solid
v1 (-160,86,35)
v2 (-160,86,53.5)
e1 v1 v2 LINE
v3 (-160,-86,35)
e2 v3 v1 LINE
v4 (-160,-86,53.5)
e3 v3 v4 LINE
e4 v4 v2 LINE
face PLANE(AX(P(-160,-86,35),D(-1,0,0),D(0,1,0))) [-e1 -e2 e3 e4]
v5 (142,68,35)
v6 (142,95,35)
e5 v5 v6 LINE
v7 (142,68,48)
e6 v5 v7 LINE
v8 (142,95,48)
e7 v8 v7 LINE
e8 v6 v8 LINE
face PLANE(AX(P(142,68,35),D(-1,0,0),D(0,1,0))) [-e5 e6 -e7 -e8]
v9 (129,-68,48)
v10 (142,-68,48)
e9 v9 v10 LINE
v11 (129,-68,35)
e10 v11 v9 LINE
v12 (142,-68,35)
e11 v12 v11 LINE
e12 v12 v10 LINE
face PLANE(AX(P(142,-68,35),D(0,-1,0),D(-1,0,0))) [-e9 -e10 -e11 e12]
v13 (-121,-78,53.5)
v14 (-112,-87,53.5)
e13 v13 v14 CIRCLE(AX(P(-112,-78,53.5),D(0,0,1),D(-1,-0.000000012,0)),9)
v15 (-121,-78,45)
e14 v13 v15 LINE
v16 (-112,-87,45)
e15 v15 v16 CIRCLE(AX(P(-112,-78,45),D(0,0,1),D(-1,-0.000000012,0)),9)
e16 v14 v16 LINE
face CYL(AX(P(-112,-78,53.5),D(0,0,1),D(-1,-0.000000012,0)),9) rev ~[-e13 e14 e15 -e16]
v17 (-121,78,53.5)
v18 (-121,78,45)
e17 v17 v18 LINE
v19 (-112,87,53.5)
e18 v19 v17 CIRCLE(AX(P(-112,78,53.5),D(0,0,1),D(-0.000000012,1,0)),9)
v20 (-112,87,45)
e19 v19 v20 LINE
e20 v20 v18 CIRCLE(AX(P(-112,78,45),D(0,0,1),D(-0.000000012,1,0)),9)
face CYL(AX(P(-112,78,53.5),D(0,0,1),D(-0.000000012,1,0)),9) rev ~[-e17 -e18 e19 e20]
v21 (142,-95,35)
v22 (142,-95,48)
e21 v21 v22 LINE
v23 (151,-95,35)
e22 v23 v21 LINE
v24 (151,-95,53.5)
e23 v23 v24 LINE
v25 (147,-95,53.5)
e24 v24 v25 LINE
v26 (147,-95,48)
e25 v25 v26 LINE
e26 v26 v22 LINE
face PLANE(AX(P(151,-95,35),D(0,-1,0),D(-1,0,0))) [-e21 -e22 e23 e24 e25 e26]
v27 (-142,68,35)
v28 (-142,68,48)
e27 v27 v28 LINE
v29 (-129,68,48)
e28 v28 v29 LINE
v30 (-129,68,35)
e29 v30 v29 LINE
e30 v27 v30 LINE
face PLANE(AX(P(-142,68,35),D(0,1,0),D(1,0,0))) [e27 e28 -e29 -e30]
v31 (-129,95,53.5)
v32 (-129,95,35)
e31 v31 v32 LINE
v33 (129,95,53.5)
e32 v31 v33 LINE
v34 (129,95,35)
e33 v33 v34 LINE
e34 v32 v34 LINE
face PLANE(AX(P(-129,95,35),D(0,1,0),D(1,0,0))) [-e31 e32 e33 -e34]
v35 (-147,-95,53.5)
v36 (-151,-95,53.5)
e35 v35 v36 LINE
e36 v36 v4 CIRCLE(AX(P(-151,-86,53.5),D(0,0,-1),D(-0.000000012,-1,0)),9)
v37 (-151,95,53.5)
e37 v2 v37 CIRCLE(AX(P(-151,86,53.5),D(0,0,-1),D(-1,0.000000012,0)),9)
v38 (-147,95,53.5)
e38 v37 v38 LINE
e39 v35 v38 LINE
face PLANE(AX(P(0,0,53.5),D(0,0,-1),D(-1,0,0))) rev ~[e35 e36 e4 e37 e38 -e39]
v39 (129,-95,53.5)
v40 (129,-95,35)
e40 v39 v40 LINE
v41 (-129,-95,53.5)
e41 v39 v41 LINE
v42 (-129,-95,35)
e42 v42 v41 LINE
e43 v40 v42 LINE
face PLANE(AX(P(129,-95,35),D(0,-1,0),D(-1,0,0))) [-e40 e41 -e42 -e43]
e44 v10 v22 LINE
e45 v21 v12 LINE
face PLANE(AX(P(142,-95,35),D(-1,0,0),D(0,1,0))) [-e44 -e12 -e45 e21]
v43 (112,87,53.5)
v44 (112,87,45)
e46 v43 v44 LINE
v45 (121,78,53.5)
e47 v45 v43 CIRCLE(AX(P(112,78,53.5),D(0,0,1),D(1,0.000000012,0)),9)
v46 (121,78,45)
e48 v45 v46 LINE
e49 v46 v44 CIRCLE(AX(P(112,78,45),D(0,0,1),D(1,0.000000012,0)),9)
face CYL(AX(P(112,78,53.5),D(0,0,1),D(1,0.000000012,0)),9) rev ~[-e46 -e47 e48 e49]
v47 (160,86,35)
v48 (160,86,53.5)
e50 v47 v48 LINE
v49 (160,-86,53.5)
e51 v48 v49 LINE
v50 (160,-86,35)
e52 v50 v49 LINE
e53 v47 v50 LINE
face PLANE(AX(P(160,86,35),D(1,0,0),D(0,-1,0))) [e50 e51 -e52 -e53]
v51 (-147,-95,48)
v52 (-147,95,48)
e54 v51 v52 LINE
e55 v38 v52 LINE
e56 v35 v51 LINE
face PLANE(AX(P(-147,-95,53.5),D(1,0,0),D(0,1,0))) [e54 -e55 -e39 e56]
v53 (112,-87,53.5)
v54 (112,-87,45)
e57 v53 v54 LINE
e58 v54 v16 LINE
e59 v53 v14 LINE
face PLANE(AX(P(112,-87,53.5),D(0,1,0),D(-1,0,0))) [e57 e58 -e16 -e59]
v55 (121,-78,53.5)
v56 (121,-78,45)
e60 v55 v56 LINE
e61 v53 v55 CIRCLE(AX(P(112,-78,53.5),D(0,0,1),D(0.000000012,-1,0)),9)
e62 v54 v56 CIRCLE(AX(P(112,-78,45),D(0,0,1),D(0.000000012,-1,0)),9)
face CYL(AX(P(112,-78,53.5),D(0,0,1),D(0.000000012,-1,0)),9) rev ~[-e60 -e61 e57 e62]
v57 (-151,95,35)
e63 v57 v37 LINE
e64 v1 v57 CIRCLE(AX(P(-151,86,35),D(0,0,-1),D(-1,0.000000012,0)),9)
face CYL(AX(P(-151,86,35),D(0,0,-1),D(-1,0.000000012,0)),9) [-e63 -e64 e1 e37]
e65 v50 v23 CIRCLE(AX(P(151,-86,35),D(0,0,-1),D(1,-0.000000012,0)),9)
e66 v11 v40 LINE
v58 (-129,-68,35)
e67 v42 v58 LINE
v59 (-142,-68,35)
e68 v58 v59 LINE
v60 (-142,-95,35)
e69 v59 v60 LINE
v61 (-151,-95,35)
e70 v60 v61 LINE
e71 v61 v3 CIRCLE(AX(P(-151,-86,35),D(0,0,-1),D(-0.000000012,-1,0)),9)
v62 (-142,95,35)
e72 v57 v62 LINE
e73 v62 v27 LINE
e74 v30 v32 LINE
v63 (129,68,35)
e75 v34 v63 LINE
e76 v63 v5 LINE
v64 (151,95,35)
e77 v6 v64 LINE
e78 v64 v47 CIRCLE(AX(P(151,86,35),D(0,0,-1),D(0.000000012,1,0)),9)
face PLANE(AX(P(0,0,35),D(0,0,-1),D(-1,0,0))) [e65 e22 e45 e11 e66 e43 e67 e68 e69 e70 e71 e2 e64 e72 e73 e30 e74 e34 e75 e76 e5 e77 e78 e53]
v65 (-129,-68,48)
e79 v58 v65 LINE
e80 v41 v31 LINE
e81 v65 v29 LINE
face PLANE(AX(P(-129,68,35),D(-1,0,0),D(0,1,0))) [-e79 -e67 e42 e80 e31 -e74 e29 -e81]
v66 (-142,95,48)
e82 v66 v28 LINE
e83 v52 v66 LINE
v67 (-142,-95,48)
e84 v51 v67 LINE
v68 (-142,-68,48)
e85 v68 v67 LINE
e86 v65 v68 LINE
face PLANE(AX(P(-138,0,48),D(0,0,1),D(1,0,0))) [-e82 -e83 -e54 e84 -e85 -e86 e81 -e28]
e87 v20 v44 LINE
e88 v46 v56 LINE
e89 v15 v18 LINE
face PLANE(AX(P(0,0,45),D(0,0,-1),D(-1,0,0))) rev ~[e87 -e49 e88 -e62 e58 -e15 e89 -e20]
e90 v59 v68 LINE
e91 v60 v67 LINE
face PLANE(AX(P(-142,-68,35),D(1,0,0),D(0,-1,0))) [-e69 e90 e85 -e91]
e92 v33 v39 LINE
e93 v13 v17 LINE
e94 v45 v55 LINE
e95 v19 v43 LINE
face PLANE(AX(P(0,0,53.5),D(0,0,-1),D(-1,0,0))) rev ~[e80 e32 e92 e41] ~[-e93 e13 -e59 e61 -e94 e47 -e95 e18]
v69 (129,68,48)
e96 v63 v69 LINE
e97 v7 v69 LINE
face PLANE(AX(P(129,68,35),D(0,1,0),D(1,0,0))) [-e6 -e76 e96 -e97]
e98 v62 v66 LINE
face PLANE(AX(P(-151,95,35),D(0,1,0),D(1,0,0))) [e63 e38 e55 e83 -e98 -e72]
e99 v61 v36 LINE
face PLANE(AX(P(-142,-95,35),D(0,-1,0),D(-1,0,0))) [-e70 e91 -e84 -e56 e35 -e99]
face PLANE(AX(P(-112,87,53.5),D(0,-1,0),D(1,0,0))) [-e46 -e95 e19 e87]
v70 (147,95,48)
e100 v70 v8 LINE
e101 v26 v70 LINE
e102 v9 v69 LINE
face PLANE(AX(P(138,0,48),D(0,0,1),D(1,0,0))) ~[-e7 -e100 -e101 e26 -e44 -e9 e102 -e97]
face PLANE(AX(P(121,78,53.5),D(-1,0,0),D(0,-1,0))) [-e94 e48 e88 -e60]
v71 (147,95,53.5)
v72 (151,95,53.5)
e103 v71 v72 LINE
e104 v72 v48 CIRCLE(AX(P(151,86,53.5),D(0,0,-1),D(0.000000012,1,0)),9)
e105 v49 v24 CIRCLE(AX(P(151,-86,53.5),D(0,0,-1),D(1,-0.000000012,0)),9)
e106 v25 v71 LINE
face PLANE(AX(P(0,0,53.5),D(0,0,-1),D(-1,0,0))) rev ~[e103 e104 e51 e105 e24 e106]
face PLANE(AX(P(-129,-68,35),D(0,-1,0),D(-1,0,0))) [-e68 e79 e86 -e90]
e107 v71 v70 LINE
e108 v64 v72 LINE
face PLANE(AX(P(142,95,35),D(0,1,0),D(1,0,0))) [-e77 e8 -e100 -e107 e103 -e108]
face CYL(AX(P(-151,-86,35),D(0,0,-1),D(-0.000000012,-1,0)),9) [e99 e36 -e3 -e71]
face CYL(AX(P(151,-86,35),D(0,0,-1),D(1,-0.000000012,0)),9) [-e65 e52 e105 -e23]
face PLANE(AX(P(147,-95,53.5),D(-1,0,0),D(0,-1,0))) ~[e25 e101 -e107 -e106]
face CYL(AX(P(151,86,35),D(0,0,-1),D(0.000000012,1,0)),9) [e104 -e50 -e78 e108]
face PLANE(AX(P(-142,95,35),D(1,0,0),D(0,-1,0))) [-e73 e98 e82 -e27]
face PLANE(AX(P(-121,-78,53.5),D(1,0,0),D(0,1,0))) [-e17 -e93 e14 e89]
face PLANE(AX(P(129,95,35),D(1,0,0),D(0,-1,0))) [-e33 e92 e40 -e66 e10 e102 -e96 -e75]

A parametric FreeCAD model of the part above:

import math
import FreeCAD as App
import Part
import Sketcher
from FreeCAD import Vector

doc = App.newDocument("Part")
body = doc.addObject("PartDesign::Body", "Body")

# Sketch on XY plane
sketch1 = doc.addObject("Sketcher::SketchObject", "Sketch")
body.addObject(sketch1)
sketch1.AttachmentSupport = (doc.XY_Plane, [""])
sketch1.MapMode = "FlatFace"
sketch1.addGeometry(Part.LineSegment(Vector(-142, 95, 0), Vector(-151, 95, 0)), False)
sketch1.addGeometry(Part.ArcOfCircle(Part.Circle(Vector(-151, 86, 0), Vector(0, 0, 1), 9), math.radians(90), math.radians(180)), False)
sketch1.addGeometry(Part.LineSegment(Vector(-160, 86, 0), Vector(-160, -86, 0)), False)
sketch1.addGeometry(Part.ArcOfCircle(Part.Circle(Vector(-151, -86, 0), Vector(0, 0, 1), 9), math.radians(-180), math.radians(-90)), False)
sketch1.addGeometry(Part.LineSegment(Vector(-151, -95, 0), Vector(-142, -95, 0)), False)
sketch1.addGeometry(Part.LineSegment(Vector(-142, -95, 0), Vector(-142, -68, 0)), False)
sketch1.addGeometry(Part.LineSegment(Vector(-142, -68, 0), Vector(-129, -68, 0)), False)
sketch1.addGeometry(Part.LineSegment(Vector(-129, -68, 0), Vector(-129, -95, 0)), False)
sketch1.addGeometry(Part.LineSegment(Vector(-129, -95, 0), Vector(129, -95, 0)), False)
sketch1.addGeometry(Part.LineSegment(Vector(129, -95, 0), Vector(129, -68, 0)), False)
sketch1.addGeometry(Part.LineSegment(Vector(129, -68, 0), Vector(142, -68, 0)), False)
sketch1.addGeometry(Part.LineSegment(Vector(142, -68, 0), Vector(142, -95, 0)), False)
sketch1.addGeometry(Part.LineSegment(Vector(142, -95, 0), Vector(151, -95, 0)), False)
sketch1.addGeometry(Part.ArcOfCircle(Part.Circle(Vector(151, -86, 0), Vector(0, 0, 1), 9), math.radians(-90), math.radians(0)), False)
sketch1.addGeometry(Part.LineSegment(Vector(160, -86, 0), Vector(160, 86, 0)), False)
sketch1.addGeometry(Part.ArcOfCircle(Part.Circle(Vector(151, 86, 0), Vector(0, 0, 1), 9), math.radians(0), math.radians(90)), False)
sketch1.addGeometry(Part.LineSegment(Vector(151, 95, 0), Vector(142, 95, 0)), False)
sketch1.addGeometry(Part.LineSegment(Vector(142, 95, 0), Vector(142, 68, 0)), False)
sketch1.addGeometry(Part.LineSegment(Vector(142, 68, 0), Vector(129, 68, 0)), False)
sketch1.addGeometry(Part.LineSegment(Vector(129, 68, 0), Vector(129, 95, 0)), False)
sketch1.addGeometry(Part.LineSegment(Vector(129, 95, 0), Vector(-129, 95, 0)), False)
sketch1.addGeometry(Part.LineSegment(Vector(-129, 95, 0), Vector(-129, 68, 0)), False)
sketch1.addGeometry(Part.LineSegment(Vector(-129, 68, 0), Vector(-142, 68, 0)), False)
sketch1.addGeometry(Part.LineSegment(Vector(-142, 68, 0), Vector(-142, 95, 0)), False)
sketch1.addConstraint(Sketcher.Constraint("Tangent", 0, 2, 1, 1))
sketch1.addConstraint(Sketcher.Constraint("Tangent", 1, 2, 2, 1))
sketch1.addConstraint(Sketcher.Constraint("Tangent", 2, 2, 3, 1))
sketch1.addConstraint(Sketcher.Constraint("Tangent", 3, 2, 4, 1))
sketch1.addConstraint(Sketcher.Constraint("Coincident", 4, 2, 5, 1))
sketch1.addConstraint(Sketcher.Constraint("Coincident", 5, 2, 6, 1))
sketch1.addConstraint(Sketcher.Constraint("Coincident", 6, 2, 7, 1))
sketch1.addConstraint(Sketcher.Constraint("Coincident", 7, 2, 8, 1))
sketch1.addConstraint(Sketcher.Constraint("Coincident", 8, 2, 9, 1))
sketch1.addConstraint(Sketcher.Constraint("Coincident", 9, 2, 10, 1))
sketch1.addConstraint(Sketcher.Constraint("Coincident", 10, 2, 11, 1))
sketch1.addConstraint(Sketcher.Constraint("Coincident", 11, 2, 12, 1))
sketch1.addConstraint(Sketcher.Constraint("Tangent", 12, 2, 13, 1))
sketch1.addConstraint(Sketcher.Constraint("Tangent", 13, 2, 14, 1))
sketch1.addConstraint(Sketcher.Constraint("Tangent", 14, 2, 15, 1))
sketch1.addConstraint(Sketcher.Constraint("Tangent", 15, 2, 16, 1))
sketch1.addConstraint(Sketcher.Constraint("Coincident", 16, 2, 17, 1))
sketch1.addConstraint(Sketcher.Constraint("Coincident", 17, 2, 18, 1))
sketch1.addConstraint(Sketcher.Constraint("Coincident", 18, 2, 19, 1))
sketch1.addConstraint(Sketcher.Constraint("Coincident", 19, 2, 20, 1))
sketch1.addConstraint(Sketcher.Constraint("Coincident", 20, 2, 21, 1))
sketch1.addConstraint(Sketcher.Constraint("Coincident", 21, 2, 22, 1))
sketch1.addConstraint(Sketcher.Constraint("Coincident", 22, 2, 23, 1))
sketch1.addConstraint(Sketcher.Constraint("Coincident", 23, 2, 0, 1))
sketch1.addConstraint(Sketcher.Constraint("Horizontal", 0))
sketch1.addConstraint(Sketcher.Constraint("Vertical", 2))
sketch1.addConstraint(Sketcher.Constraint("Horizontal", 4))
sketch1.addConstraint(Sketcher.Constraint("Vertical", 5))
sketch1.addConstraint(Sketcher.Constraint("Horizontal", 6))
sketch1.addConstraint(Sketcher.Constraint("Vertical", 7))
sketch1.addConstraint(Sketcher.Constraint("Horizontal", 8))
sketch1.addConstraint(Sketcher.Constraint("Vertical", 9))
sketch1.addConstraint(Sketcher.Constraint("Horizontal", 10))
sketch1.addConstraint(Sketcher.Constraint("Vertical", 11))
sketch1.addConstraint(Sketcher.Constraint("Horizontal", 12))
sketch1.addConstraint(Sketcher.Constraint("Vertical", 14))
sketch1.addConstraint(Sketcher.Constraint("Horizontal", 16))
sketch1.addConstraint(Sketcher.Constraint("Vertical", 17))
sketch1.addConstraint(Sketcher.Constraint("Horizontal", 18))
sketch1.addConstraint(Sketcher.Constraint("Vertical", 19))
sketch1.addConstraint(Sketcher.Constraint("Horizontal", 20))
sketch1.addConstraint(Sketcher.Constraint("Vertical", 21))
sketch1.addConstraint(Sketcher.Constraint("Horizontal", 22))
sketch1.addConstraint(Sketcher.Constraint("Vertical", 23))
sketch1.addConstraint(Sketcher.Constraint("Equal", 1, 3))
sketch1.addConstraint(Sketcher.Constraint("Equal", 3, 13))
sketch1.addConstraint(Sketcher.Constraint("Equal", 13, 15))
sketch1.addConstraint(Sketcher.Constraint("Symmetric", 1, 3, 13, 3, -1, 1))
sketch1.addConstraint(Sketcher.Constraint("Symmetric", 4, 2, 16, 2, -1, 1))
sketch1.addConstraint(Sketcher.Constraint("Symmetric", 6, 2, 18, 2, -1, 1))
sketch1.addConstraint(Sketcher.Constraint("Symmetric", 8, 2, 20, 2, -1, 1))
sketch1.addConstraint(Sketcher.Constraint("Symmetric", 10, 2, 22, 2, -1, 1))
sketch1.addConstraint(Sketcher.Constraint("Symmetric", 6, 2, 9, 2, -2))
sketch1.addConstraint(Sketcher.Constraint("Symmetric", 4, 2, 11, 2, -2))
sketch1.addConstraint(Sketcher.Constraint("Horizontal", 4, 2, 7, 2))
sketch1.addConstraint(Sketcher.Constraint("Radius", 1, 9.0))
sketch1.addConstraint(Sketcher.Constraint("DistanceX", 0, 2, 0, 1, 9.0))
sketch1.addConstraint(Sketcher.Constraint("DistanceX", 6, 1, 6, 2, 13.0))
sketch1.addConstraint(Sketcher.Constraint("DistanceX", 8, 1, 8, 2, 258.0))
sketch1.addConstraint(Sketcher.Constraint("DistanceY", 2, 2, 2, 1, 172.0))
sketch1.addConstraint(Sketcher.Constraint("DistanceY", 5, 1, 5, 2, 27.0))
pad1 = doc.addObject("PartDesign::Pad", "Pad")
body.addObject(pad1)
pad1.Profile = sketch1
pad1.Length = 18.5

# Sketch on XY plane
sketch2 = doc.addObject("Sketcher::SketchObject", "Sketch001")
body.addObject(sketch2)
sketch2.AttachmentSupport = (doc.XY_Plane, [""])
sketch2.MapMode = "FlatFace"
sketch2.AttachmentOffset = App.Placement(Vector(0, 0, 18.5), App.Rotation())
sketch2.addGeometry(Part.LineSegment(Vector(-147, 95, 0), Vector(-147, -95, 0)), False)
sketch2.addGeometry(Part.LineSegment(Vector(-147, -95, 0), Vector(-129, -95, 0)), False)
sketch2.addGeometry(Part.LineSegment(Vector(-129, -95, 0), Vector(-129, 95, 0)), False)
sketch2.addGeometry(Part.LineSegment(Vector(-129, 95, 0), Vector(-147, 95, 0)), False)
sketch2.addConstraint(Sketcher.Constraint("Coincident", 0, 2, 1, 1))
sketch2.addConstraint(Sketcher.Constraint("Coincident", 1, 2, 2, 1))
sketch2.addConstraint(Sketcher.Constraint("Coincident", 2, 2, 3, 1))
sketch2.addConstraint(Sketcher.Constraint("Coincident", 3, 2, 0, 1))
sketch2.addConstraint(Sketcher.Constraint("Vertical", 0))
sketch2.addConstraint(Sketcher.Constraint("Horizontal", 1))
sketch2.addConstraint(Sketcher.Constraint("Vertical", 2))
sketch2.addConstraint(Sketcher.Constraint("Horizontal", 3))
sketch2.addConstraint(Sketcher.Constraint("DistanceX", 1, 1, 1, 2, 18.0))
sketch2.addConstraint(Sketcher.Constraint("DistanceY", 0, 2, 0, 1, 190.0))
sketch2.addConstraint(Sketcher.Constraint("DistanceX", 0, 2, -1, 1, 147.0))
sketch2.addConstraint(Sketcher.Constraint("DistanceY", 0, 2, -1, 1, 95.0))
pocket1 = doc.addObject("PartDesign::Pocket", "Pocket")
body.addObject(pocket1)
pocket1.Profile = sketch2
pocket1.Length = 5.5
doc.recompute()

mirrored = doc.addObject("PartDesign::Mirrored", "Mirrored")
body.addObject(mirrored)
mirrored.Originals = [pocket1]
mirrored.MirrorPlane = (doc.YZ_Plane, [""])
body.Tip = mirrored

# Sketch on XY plane
sketch3 = doc.addObject("Sketcher::SketchObject", "Sketch002")
body.addObject(sketch3)
sketch3.AttachmentSupport = (doc.XY_Plane, [""])
sketch3.MapMode = "FlatFace"
sketch3.AttachmentOffset = App.Placement(Vector(0, 0, 18.5), App.Rotation())
sketch3.addGeometry(Part.LineSegment(Vector(112, 87, 0), Vector(-112, 87, 0)), False)
sketch3.addGeometry(Part.ArcOfCircle(Part.Circle(Vector(-112, 78, 0), Vector(0, 0, 1), 9), math.radians(90), math.radians(180)), False)
sketch3.addGeometry(Part.LineSegment(Vector(-121, 78, 0), Vector(-121, -78, 0)), False)
sketch3.addGeometry(Part.ArcOfCircle(Part.Circle(Vector(-112, -78, 0), Vector(0, 0, 1), 9), math.radians(-180), math.radians(-90)), False)
sketch3.addGeometry(Part.LineSegment(Vector(-112, -87, 0), Vector(112, -87, 0)), False)
sketch3.addGeometry(Part.ArcOfCircle(Part.Circle(Vector(112, -78, 0), Vector(0, 0, 1), 9), math.radians(-90), math.radians(0)), False)
sketch3.addGeometry(Part.LineSegment(Vector(121, -78, 0), Vector(121, 78, 0)), False)
sketch3.addGeometry(Part.ArcOfCircle(Part.Circle(Vector(112, 78, 0), Vector(0, 0, 1), 9), math.radians(0), math.radians(90)), False)
sketch3.addConstraint(Sketcher.Constraint("Tangent", 0, 2, 1, 1))
sketch3.addConstraint(Sketcher.Constraint("Tangent", 1, 2, 2, 1))
sketch3.addConstraint(Sketcher.Constraint("Tangent", 2, 2, 3, 1))
sketch3.addConstraint(Sketcher.Constraint("Tangent", 3, 2, 4, 1))
sketch3.addConstraint(Sketcher.Constraint("Tangent", 4, 2, 5, 1))
sketch3.addConstraint(Sketcher.Constraint("Tangent", 5, 2, 6, 1))
sketch3.addConstraint(Sketcher.Constraint("Tangent", 6, 2, 7, 1))
sketch3.addConstraint(Sketcher.Constraint("Tangent", 7, 2, 0, 1))
sketch3.addConstraint(Sketcher.Constraint("Horizontal", 0))
sketch3.addConstraint(Sketcher.Constraint("Vertical", 2))
sketch3.addConstraint(Sketcher.Constraint("Horizontal", 4))
sketch3.addConstraint(Sketcher.Constraint("Vertical", 6))
sketch3.addConstraint(Sketcher.Constraint("Equal", 1, 3))
sketch3.addConstraint(Sketcher.Constraint("Equal", 3, 5))
sketch3.addConstraint(Sketcher.Constraint("Equal", 5, 7))
sketch3.addConstraint(Sketcher.Constraint("Symmetric", 1, 3, 5, 3, -1, 1))
sketch3.addConstraint(Sketcher.Constraint("Radius", 1, 9.0))
sketch3.addConstraint(Sketcher.Constraint("DistanceX", 0, 2, 0, 1, 224.0))
sketch3.addConstraint(Sketcher.Constraint("DistanceY", 2, 2, 2, 1, 156.0))
pocket2 = doc.addObject("PartDesign::Pocket", "Pocket001")
body.addObject(pocket2)
pocket2.Profile = sketch3
pocket2.Length = 8.5
doc.recompute()

mirrored2 = doc.addObject("PartDesign::Mirrored", "Mirrored001")
body.addObject(mirrored2)
mirrored2.Originals = [pocket2]
mirrored2.MirrorPlane = (doc.YZ_Plane, [""])
body.Tip = mirrored2
body2 = doc.addObject("PartDesign::Body", "Body001")
doc.recompute()

body.Placement = App.Placement(Vector(0, 0, 35), App.Rotation(Vector(0, 0, 1), 0))
boolean = doc.addObject("PartDesign::Boolean", "Boolean")
body2.addObject(boolean)
boolean.Type = "Fuse"
boolean.addObjects([body])

doc.recompute()
